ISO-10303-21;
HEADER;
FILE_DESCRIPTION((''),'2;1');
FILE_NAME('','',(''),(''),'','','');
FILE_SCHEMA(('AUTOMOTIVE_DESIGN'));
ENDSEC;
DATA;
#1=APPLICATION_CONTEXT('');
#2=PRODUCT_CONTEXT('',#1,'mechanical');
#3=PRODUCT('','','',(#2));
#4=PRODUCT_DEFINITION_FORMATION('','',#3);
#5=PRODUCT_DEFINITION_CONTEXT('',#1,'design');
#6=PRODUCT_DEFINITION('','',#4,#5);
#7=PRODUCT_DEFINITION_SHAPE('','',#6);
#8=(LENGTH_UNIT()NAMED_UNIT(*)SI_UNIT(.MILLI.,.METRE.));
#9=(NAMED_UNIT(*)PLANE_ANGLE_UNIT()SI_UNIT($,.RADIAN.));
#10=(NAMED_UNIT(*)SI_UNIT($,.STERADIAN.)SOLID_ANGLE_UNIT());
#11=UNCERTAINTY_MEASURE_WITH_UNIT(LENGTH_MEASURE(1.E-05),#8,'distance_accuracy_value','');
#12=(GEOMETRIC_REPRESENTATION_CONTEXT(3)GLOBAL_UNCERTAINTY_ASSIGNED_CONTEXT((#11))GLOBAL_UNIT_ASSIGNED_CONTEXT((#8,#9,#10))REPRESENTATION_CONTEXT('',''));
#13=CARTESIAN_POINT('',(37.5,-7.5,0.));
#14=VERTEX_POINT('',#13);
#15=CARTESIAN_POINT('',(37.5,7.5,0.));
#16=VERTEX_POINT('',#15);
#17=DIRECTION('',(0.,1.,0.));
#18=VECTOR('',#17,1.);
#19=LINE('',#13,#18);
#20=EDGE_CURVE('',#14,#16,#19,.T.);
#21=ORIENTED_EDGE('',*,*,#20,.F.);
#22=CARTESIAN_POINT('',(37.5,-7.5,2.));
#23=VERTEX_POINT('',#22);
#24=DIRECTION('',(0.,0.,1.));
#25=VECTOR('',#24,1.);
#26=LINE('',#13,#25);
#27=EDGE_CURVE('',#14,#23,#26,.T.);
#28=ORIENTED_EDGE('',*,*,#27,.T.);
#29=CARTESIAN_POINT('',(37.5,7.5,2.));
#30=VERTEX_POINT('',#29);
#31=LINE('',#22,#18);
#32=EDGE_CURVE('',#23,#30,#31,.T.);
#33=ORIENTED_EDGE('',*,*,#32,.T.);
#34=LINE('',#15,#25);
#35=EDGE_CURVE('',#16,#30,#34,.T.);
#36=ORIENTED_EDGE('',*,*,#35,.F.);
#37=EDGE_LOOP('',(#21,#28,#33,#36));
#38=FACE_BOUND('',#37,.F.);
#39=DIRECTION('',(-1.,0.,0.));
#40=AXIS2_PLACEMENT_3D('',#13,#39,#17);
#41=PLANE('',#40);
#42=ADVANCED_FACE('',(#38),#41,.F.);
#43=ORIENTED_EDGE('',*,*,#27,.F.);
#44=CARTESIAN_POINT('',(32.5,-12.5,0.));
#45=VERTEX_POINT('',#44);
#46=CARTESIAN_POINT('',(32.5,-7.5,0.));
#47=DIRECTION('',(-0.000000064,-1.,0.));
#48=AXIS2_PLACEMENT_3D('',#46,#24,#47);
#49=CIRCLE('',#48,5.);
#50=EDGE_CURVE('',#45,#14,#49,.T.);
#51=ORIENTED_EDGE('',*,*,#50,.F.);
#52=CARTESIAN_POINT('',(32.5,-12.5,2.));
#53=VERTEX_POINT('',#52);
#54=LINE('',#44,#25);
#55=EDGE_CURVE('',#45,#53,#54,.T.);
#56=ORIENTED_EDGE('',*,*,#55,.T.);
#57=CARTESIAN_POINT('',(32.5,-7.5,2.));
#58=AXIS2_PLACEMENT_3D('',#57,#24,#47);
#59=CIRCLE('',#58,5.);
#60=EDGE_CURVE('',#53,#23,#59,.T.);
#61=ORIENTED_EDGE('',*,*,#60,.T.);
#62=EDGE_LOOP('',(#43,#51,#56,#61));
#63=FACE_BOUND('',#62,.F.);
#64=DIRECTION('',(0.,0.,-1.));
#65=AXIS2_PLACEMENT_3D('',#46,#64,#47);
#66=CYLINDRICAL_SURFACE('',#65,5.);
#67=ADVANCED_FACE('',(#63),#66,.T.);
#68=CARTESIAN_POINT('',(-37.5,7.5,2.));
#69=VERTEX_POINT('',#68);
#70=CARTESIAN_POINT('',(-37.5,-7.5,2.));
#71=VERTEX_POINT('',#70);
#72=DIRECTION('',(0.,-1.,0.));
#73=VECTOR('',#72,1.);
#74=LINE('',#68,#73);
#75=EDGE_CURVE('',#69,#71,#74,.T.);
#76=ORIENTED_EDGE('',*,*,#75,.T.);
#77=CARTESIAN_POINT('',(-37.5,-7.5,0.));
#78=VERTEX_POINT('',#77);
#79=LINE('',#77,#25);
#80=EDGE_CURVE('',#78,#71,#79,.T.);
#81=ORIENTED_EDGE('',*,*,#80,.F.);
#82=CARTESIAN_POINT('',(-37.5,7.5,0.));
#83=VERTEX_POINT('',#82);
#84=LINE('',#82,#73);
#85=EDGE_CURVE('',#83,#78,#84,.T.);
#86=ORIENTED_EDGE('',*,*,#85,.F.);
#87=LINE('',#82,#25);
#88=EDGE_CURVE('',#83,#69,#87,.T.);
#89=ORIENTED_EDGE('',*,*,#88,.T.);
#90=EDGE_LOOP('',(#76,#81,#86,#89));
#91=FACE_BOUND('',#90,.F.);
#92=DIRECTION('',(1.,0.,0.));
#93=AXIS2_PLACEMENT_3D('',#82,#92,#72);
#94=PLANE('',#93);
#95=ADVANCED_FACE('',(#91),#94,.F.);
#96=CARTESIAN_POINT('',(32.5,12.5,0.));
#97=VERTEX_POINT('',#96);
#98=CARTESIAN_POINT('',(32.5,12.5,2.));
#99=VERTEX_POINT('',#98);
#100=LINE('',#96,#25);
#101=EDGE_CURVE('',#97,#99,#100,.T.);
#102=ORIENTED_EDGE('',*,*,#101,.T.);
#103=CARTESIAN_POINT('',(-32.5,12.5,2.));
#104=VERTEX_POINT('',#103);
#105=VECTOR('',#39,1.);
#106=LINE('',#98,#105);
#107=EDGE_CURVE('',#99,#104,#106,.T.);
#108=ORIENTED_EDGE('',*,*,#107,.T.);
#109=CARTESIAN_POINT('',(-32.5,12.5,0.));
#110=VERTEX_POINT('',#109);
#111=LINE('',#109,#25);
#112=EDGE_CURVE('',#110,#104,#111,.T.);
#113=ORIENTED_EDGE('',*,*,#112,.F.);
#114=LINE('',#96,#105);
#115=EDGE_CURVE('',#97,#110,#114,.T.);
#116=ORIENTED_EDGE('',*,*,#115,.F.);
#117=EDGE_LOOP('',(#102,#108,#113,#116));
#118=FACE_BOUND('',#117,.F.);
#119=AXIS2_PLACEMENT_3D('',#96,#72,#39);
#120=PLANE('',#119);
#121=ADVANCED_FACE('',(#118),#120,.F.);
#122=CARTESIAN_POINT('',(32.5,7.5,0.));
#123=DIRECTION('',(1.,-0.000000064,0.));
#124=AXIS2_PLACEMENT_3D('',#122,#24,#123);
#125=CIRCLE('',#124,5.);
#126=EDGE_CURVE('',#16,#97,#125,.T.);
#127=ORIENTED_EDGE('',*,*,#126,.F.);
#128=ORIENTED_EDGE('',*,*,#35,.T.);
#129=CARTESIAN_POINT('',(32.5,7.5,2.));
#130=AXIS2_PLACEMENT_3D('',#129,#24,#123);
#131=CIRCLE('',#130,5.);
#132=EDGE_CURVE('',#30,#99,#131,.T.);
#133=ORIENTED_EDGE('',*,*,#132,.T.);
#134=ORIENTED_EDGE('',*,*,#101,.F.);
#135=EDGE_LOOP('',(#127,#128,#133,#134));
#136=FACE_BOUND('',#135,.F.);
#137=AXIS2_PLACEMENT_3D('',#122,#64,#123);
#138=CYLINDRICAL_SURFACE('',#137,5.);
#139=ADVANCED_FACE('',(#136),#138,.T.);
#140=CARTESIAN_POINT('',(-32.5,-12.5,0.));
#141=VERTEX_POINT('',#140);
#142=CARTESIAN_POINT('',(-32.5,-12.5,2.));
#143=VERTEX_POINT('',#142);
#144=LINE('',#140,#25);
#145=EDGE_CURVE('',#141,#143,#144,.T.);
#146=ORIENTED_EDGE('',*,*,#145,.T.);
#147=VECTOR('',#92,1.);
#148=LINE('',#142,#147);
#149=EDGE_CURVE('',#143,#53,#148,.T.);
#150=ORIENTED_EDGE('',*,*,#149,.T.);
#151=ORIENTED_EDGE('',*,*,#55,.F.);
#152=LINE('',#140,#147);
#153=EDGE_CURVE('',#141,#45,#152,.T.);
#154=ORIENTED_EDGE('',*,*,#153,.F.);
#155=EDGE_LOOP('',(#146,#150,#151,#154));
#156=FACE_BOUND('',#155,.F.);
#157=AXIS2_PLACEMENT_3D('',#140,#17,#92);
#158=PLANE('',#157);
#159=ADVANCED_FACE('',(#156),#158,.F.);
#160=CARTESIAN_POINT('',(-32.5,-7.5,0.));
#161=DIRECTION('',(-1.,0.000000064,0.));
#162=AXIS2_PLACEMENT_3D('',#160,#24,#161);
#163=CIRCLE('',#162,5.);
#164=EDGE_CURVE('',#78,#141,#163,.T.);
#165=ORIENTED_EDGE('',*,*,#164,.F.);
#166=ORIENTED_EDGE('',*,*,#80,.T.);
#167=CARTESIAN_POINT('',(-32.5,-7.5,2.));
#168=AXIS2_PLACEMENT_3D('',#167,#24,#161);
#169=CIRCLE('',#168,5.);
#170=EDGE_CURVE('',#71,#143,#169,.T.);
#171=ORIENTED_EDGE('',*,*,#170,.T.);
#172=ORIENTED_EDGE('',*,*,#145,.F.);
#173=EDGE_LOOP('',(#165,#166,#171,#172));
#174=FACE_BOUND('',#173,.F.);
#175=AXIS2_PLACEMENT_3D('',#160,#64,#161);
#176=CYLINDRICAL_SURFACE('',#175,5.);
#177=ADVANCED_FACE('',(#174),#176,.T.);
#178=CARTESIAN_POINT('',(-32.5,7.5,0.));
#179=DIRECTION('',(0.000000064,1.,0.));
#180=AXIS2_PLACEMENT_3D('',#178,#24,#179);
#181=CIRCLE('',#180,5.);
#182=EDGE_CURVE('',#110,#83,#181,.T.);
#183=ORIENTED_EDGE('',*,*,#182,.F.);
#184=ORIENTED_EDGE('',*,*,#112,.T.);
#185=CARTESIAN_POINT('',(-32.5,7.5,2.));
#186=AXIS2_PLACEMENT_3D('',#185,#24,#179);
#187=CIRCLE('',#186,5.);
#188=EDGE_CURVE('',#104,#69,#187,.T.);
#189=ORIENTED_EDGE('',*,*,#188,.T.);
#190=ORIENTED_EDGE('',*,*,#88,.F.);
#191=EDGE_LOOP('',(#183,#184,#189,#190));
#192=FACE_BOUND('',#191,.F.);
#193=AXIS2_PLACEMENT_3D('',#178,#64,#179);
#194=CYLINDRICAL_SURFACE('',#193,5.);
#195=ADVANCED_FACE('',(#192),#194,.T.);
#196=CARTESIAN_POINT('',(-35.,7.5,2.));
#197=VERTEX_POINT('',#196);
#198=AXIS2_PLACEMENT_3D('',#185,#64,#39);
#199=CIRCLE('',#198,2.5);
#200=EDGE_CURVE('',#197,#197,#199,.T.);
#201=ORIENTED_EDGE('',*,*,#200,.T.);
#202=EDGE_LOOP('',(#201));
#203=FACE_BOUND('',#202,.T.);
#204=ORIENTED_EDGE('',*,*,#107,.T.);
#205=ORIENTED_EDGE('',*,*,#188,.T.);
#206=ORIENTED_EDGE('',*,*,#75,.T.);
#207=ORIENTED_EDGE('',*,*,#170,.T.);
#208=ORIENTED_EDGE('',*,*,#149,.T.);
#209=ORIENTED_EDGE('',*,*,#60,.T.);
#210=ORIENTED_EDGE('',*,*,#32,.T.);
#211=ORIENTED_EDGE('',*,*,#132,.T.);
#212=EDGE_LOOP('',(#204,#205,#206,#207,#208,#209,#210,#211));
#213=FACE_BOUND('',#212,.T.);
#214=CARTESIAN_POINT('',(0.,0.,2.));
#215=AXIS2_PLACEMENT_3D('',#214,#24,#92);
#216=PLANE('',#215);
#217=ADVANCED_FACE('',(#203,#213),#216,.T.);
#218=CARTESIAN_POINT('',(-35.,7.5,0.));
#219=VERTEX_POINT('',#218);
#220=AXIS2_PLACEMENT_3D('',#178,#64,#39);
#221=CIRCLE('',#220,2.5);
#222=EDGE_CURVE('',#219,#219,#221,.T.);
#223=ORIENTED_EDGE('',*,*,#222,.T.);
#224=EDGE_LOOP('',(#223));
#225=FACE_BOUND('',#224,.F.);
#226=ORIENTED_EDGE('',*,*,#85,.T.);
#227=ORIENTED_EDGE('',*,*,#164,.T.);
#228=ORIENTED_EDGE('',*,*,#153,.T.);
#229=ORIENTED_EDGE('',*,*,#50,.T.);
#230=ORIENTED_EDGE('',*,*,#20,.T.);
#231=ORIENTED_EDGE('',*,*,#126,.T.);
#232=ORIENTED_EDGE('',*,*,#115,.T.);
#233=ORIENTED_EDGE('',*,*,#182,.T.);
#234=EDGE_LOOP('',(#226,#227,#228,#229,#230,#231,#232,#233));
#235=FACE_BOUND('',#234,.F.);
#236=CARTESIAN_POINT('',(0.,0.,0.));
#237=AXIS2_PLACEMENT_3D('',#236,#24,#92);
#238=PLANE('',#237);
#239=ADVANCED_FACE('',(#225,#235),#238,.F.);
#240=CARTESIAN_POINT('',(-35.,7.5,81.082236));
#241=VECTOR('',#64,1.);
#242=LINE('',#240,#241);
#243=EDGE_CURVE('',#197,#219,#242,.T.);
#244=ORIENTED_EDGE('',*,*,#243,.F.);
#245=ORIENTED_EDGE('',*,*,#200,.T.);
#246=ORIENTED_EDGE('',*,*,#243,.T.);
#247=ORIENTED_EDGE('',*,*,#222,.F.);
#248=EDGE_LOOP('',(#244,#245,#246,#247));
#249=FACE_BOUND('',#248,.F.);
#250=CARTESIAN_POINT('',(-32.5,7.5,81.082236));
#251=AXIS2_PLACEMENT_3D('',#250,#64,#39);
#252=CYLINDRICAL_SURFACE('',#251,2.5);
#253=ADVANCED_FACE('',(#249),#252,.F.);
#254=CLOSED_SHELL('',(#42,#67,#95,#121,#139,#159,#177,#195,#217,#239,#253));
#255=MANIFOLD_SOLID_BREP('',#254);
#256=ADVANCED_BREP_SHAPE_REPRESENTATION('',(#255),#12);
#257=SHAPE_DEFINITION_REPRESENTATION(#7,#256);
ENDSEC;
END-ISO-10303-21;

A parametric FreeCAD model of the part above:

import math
import FreeCAD as App
import Part
import Sketcher

V = App.Vector

doc = App.newDocument("Part")
body = doc.addObject("PartDesign::Body", "Body")

sketch1 = body.newObject("Sketcher::SketchObject", "Sketch")
sketch1.AttachmentSupport = (doc.getObject("XY_Plane"), [""])
sketch1.MapMode = "FlatFace"
sketch1.addGeometry([
    Part.ArcOfCircle(Part.Circle(V(32.5, 7.5, 0), V(0, 0, 1), 5), math.radians(0), math.radians(90)),
    Part.LineSegment(V(32.5, 12.5, 0), V(-32.5, 12.5, 0)),
    Part.ArcOfCircle(Part.Circle(V(-32.5, 7.5, 0), V(0, 0, 1), 5), math.radians(90), math.radians(180)),
    Part.LineSegment(V(-37.5, 7.5, 0), V(-37.5, -7.5, 0)),
    Part.ArcOfCircle(Part.Circle(V(-32.5, -7.5, 0), V(0, 0, 1), 5), math.radians(180), math.radians(270)),
    Part.LineSegment(V(-32.5, -12.5, 0), V(32.5, -12.5, 0)),
    Part.ArcOfCircle(Part.Circle(V(32.5, -7.5, 0), V(0, 0, 1), 5), math.radians(-90), math.radians(0)),
    Part.LineSegment(V(37.5, -7.5, 0), V(37.5, 7.5, 0)),
], False)
sketch1.addConstraint([
    Sketcher.Constraint("Tangent", 0, 2, 1, 1),
    Sketcher.Constraint("Tangent", 1, 2, 2, 1),
    Sketcher.Constraint("Tangent", 2, 2, 3, 1),
    Sketcher.Constraint("Tangent", 3, 2, 4, 1),
    Sketcher.Constraint("Tangent", 4, 2, 5, 1),
    Sketcher.Constraint("Tangent", 5, 2, 6, 1),
    Sketcher.Constraint("Tangent", 6, 2, 7, 1),
    Sketcher.Constraint("Tangent", 7, 2, 0, 1),
    Sketcher.Constraint("Horizontal", 1),
    Sketcher.Constraint("Vertical", 3),
    Sketcher.Constraint("Horizontal", 5),
    Sketcher.Constraint("Vertical", 7),
    Sketcher.Constraint("Equal", 0, 2),
    Sketcher.Constraint("Equal", 2, 4),
    Sketcher.Constraint("Equal", 4, 6),
    Sketcher.Constraint("Symmetric", 0, 3, 4, 3, -1, 1),
    Sketcher.Constraint("Radius", 0, 5.0),
    Sketcher.Constraint("DistanceX", 1, 2, 1, 1, 65.0),
    Sketcher.Constraint("DistanceY", 3, 2, 3, 1, 15.0),
])
pad1 = body.newObject("PartDesign::Pad", "Pad")
pad1.Profile = sketch1
pad1.Length = 2

sketch2 = body.newObject("Sketcher::SketchObject", "Sketch001")
sketch2.AttachmentSupport = (doc.getObject("XY_Plane"), [""])
sketch2.MapMode = "FlatFace"
sketch2.AttachmentOffset = App.Placement(V(0, 0, 2), App.Rotation())
sketch2.addGeometry(Part.Circle(V(-32.5, 7.5, 0), V(0, 0, 1), 2.5), False)
sketch2.addConstraint([
    Sketcher.Constraint("Diameter", 0, 5.0),
    Sketcher.Constraint("DistanceX", 0, 3, -1, 1, 32.5),
    Sketcher.Constraint("DistanceY", -1, 1, 0, 3, 7.5),
])
doc.recompute()
hole = body.newObject("PartDesign::Hole", "Hole")
hole.Profile = sketch2
hole.ThreadType = "None"
hole.Diameter = 5
hole.DepthType = "ThroughAll"

doc.recompute()
